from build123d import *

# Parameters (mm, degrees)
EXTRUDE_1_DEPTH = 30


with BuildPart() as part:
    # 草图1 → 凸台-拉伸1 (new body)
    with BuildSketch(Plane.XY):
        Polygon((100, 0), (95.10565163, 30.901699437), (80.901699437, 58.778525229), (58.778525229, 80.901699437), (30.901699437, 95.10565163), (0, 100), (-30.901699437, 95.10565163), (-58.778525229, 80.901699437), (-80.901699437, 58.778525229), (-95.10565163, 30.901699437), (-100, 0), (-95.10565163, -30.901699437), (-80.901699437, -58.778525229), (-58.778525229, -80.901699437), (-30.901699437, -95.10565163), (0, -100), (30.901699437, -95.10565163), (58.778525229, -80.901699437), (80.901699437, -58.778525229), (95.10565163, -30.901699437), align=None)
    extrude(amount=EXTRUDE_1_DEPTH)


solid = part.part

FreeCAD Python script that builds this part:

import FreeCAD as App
import Part
import Sketcher
Q = App.Units.Quantity


def add_polygon(sketch, points):
    """Adds a closed chain of lines whose ends are joined by coincident constraints."""
    first, n = sketch.GeometryCount, len(points)
    for a, b in zip(points, points[1:] + points[:1]):
        sketch.addGeometry(Part.LineSegment(App.Vector(*a, 0), App.Vector(*b, 0)), False)
    for i in range(n):
        sketch.addConstraint(Sketcher.Constraint("Coincident", first + i, 2, first + (i + 1) % n, 1))

doc = App.newDocument("Part")
body = doc.addObject("PartDesign::Body", "Body")

# Sketch on XY plane
sketch1 = body.newObject("Sketcher::SketchObject", "Sketch")
sketch1.AttachmentSupport = (doc.getObject("XY_Plane"), [""])
sketch1.MapMode = "FlatFace"
add_polygon(sketch1, [(100, 0), (95, 31), (81, 59), (59, 81), (31, 95), (0, 100), (-31, 95), (-59, 81), (-81, 59), (-95, 31), (-100, 0), (-95, -31), (-81, -59), (-59, -81), (-31, -95), (0, -100), (31, -95), (59, -81), (81, -59), (95, -31)])  # lines 0-19
sketch1.addConstraint([
    Sketcher.Constraint("Symmetric", 0, 2, 10, 2, -1, 1),
    Sketcher.Constraint("Symmetric", 1, 2, 11, 2, -1, 1),
    Sketcher.Constraint("Symmetric", 2, 2, 12, 2, -1, 1),
    Sketcher.Constraint("Symmetric", 3, 2, 13, 2, -1, 1),
    Sketcher.Constraint("Symmetric", 4, 2, 14, 2, -1, 1),
    Sketcher.Constraint("Symmetric", 5, 2, 15, 2, -1, 1),
    Sketcher.Constraint("Symmetric", 6, 2, 16, 2, -1, 1),
    Sketcher.Constraint("Symmetric", 7, 2, 17, 2, -1, 1),
    Sketcher.Constraint("Symmetric", 8, 2, 18, 2, -1, 1),
    Sketcher.Constraint("Symmetric", 9, 2, 19, 2, -1, 1),
    Sketcher.Constraint("Symmetric", 3, 2, 5, 2, -2),
    Sketcher.Constraint("Symmetric", 2, 2, 6, 2, -2),
    Sketcher.Constraint("Symmetric", 1, 2, 7, 2, -2),
    Sketcher.Constraint("Symmetric", 0, 2, 8, 2, -2),
    Sketcher.Constraint("PointOnObject", 4, 2, -2),
    Sketcher.Constraint("PointOnObject", 9, 2, -1),
    Sketcher.Constraint("Perpendicular", 0, 5),
    Sketcher.Constraint("Perpendicular", 1, 6),
    Sketcher.Constraint("Perpendicular", 2, 7),
    Sketcher.Constraint("Equal", 0, 1),
    Sketcher.Constraint("Equal", 1, 2),
    Sketcher.Constraint("Equal", 2, 3),
    Sketcher.Constraint("Equal", 3, 4),
    Sketcher.Constraint("Angle", 0, Q("99 deg")),
    Sketcher.Constraint("Angle", 1, Q("117 deg")),
    Sketcher.Constraint("DistanceY", -1, 1, 4, 2, Q("100 mm")),
])
pad1 = body.newObject("PartDesign::Pad", "Pad")
pad1.Profile = sketch1
pad1.Length = 30

doc.recompute()
